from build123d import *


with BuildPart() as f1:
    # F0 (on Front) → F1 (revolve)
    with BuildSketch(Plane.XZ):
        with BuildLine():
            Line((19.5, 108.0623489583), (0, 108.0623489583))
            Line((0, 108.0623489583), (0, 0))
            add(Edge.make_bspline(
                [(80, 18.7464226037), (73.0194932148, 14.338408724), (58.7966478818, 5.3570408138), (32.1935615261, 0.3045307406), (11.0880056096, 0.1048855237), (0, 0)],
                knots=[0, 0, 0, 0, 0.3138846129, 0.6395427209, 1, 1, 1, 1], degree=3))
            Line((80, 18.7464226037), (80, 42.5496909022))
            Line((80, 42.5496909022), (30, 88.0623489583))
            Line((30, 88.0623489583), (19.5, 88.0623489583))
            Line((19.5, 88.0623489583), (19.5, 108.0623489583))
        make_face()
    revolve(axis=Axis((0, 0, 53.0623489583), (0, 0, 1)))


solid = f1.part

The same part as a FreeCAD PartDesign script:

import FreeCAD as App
import Part
import Sketcher
from FreeCAD import Vector
Q = App.Units.Quantity

doc = App.newDocument("Part")
body = doc.addObject("PartDesign::Body", "Body")

# Sketch on XZ plane
sketch1 = doc.addObject("Sketcher::SketchObject", "Sketch")
body.addObject(sketch1)
sketch1.AttachmentSupport = (doc.XZ_Plane, [""])
sketch1.MapMode = "FlatFace"
sketch1.addGeometry(Part.LineSegment(Vector(19.5, 108.062349, 0), Vector(0, 108.062349, 0)), False)
sketch1.addGeometry(Part.LineSegment(Vector(0, 108.062349, 0), Vector(0, 0, 0)), False)
sketch1.addGeometry(Part.BSplineCurve([Vector(80, 18.746423, 0), Vector(73.019493, 14.338409, 0), Vector(58.796648, 5.357041, 0), Vector(32.193562, 0.304531, 0), Vector(11.088006, 0.104886, 0), Vector(0, 0, 0)], [4, 1, 1, 4], [0, 0.313884613, 0.639542721, 1], False, 3, [1, 1, 1, 1, 1, 1], False), False)
sketch1.addGeometry(Part.LineSegment(Vector(80, 18.746423, 0), Vector(80, 42.549691, 0)), False)
sketch1.addGeometry(Part.LineSegment(Vector(80, 42.549691, 0), Vector(30, 88.062349, 0)), False)
sketch1.addGeometry(Part.LineSegment(Vector(30, 88.062349, 0), Vector(19.5, 88.062349, 0)), False)
sketch1.addGeometry(Part.LineSegment(Vector(19.5, 88.062349, 0), Vector(19.5, 108.062349, 0)), False)
sketch1.addConstraint(Sketcher.Constraint("Block", 2))
sketch1.addConstraint(Sketcher.Constraint("Coincident", 0, 2, 1, 1))
sketch1.addConstraint(Sketcher.Constraint("Coincident", 1, 2, 2, 2))
sketch1.addConstraint(Sketcher.Constraint("Coincident", 2, 1, 3, 1))
sketch1.addConstraint(Sketcher.Constraint("Coincident", 3, 2, 4, 1))
sketch1.addConstraint(Sketcher.Constraint("Coincident", 4, 2, 5, 1))
sketch1.addConstraint(Sketcher.Constraint("Coincident", 5, 2, 6, 1))
sketch1.addConstraint(Sketcher.Constraint("Coincident", 6, 2, 0, 1))
sketch1.addConstraint(Sketcher.Constraint("Horizontal", 0))
sketch1.addConstraint(Sketcher.Constraint("Vertical", 1))
sketch1.addConstraint(Sketcher.Constraint("Vertical", 3))
sketch1.addConstraint(Sketcher.Constraint("Horizontal", 5))
sketch1.addConstraint(Sketcher.Constraint("Vertical", 6))
sketch1.addConstraint(Sketcher.Constraint("DistanceY", 6, 1, 6, 2, Q("20 mm")))
sketch1.addConstraint(Sketcher.Constraint("DistanceX", 0, 2, 0, 1, Q("19.5 mm")))
sketch1.addConstraint(Sketcher.Constraint("DistanceX", 5, 2, 5, 1, Q("10.5 mm")))
sketch1.addConstraint(Sketcher.Constraint("DistanceY", 1, 2, 1, 1, Q("108.062349 mm")))
sketch1.addConstraint(Sketcher.Constraint("DistanceY", 3, 1, 3, 2, Q("23.803268 mm")))
revolution = doc.addObject("PartDesign::Revolution", "Revolution")
body.addObject(revolution)
revolution.Profile = sketch1
revolution.ReferenceAxis = (sketch1, ["V_Axis"])
revolution.Angle = 360

doc.recompute()
